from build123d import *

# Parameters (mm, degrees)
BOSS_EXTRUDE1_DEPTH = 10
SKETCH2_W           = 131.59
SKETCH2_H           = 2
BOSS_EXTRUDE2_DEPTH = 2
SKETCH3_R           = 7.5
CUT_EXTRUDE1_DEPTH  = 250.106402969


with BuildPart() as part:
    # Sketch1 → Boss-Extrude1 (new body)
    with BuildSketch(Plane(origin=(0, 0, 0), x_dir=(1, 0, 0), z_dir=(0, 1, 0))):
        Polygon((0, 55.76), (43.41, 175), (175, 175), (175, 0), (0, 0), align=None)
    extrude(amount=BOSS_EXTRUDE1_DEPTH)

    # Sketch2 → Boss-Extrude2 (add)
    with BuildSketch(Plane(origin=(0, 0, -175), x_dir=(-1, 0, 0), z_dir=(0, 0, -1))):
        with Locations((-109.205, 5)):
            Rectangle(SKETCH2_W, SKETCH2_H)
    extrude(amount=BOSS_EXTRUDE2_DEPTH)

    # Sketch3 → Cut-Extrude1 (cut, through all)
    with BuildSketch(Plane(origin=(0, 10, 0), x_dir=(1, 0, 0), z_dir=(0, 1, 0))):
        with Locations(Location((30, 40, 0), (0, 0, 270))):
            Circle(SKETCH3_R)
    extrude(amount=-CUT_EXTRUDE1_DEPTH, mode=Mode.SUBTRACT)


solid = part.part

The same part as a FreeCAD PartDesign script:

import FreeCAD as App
import Part
import Sketcher
Q = App.Units.Quantity

doc = App.newDocument("Part")
params = doc.addObject("Spreadsheet::Sheet", "Params")
for row, (alias, value) in enumerate([
    ("sketch1_width", "175 mm"),
    ("sketch1_width2", "131.59 mm"),
    ("sketch1_height", "55.76 mm"),
    ("pad1_length", "10 mm"),
    ("sketch2_height", "2 mm"),
    ("sketch2_width", "131.59 mm"),
    ("pad2_length", "2 mm"),
    ("sketch3_diameter", "15 mm"),
], start=1):
    params.set(f"A{row}", alias)
    params.set(f"B{row}", "=" + value)
    params.setAlias(f"B{row}", alias)

body = doc.addObject("PartDesign::Body", "Body")

# Sketch on XZ plane
sketch1 = body.newObject("Sketcher::SketchObject", "Sketch")
sketch1.AttachmentSupport = (doc.getObject("XZ_Plane"), [""])
sketch1.MapMode = "FlatFace"
sketch1.addGeometry([
    Part.LineSegment(App.Vector(43.41, -175, 0), App.Vector(0, -55.76, 0)),  # 0
    Part.LineSegment(App.Vector(0, -55.76, 0), App.Vector(0, 0, 0)),  # 1
    Part.LineSegment(App.Vector(0, 0, 0), App.Vector(175, 0, 0)),  # 2
    Part.LineSegment(App.Vector(175, 0, 0), App.Vector(175, -175, 0)),  # 3
    Part.LineSegment(App.Vector(175, -175, 0), App.Vector(43.41, -175, 0)),  # 4
], False)
sketch1.addConstraint([
    Sketcher.Constraint("Coincident", 0, 2, 1, 1),
    Sketcher.Constraint("Coincident", 1, 2, 2, 1),
    Sketcher.Constraint("Coincident", 2, 2, 3, 1),
    Sketcher.Constraint("Coincident", 3, 2, 4, 1),
    Sketcher.Constraint("Coincident", 4, 2, 0, 1),
    Sketcher.Constraint("Vertical", 1),
    Sketcher.Constraint("Horizontal", 2),
    Sketcher.Constraint("Vertical", 3),
    Sketcher.Constraint("Horizontal", 4),
    Sketcher.Constraint("Coincident", 1, 2, -1, 1),
    Sketcher.Constraint("Equal", 2, 3),
    Sketcher.Constraint("DistanceX", 2, 1, 2, 2, Q("175 mm")),
    Sketcher.Constraint("DistanceX", 4, 2, 4, 1, Q("131.59 mm")),
    Sketcher.Constraint("DistanceY", 1, 1, 1, 2, Q("55.76 mm")),
])
sketch1.setExpression("Constraints[11]", "Params.sketch1_width")
sketch1.setExpression("Constraints[12]", "Params.sketch1_width2")
sketch1.setExpression("Constraints[13]", "Params.sketch1_height")
pad1 = body.newObject("PartDesign::Pad", "Pad")
pad1.Profile = sketch1
pad1.setExpression("Length", "Params.pad1_length")
pad1.Reversed = True

# Sketch on XY plane
sketch2 = body.newObject("Sketcher::SketchObject", "Sketch001")
sketch2.AttachmentSupport = (doc.getObject("XY_Plane"), [""])
sketch2.MapMode = "FlatFace"
sketch2.AttachmentOffset = App.Placement(App.Vector(0, 0, -175), App.Rotation())
sketch2.addGeometry([
    Part.LineSegment(App.Vector(175, 6, 0), App.Vector(175, 4, 0)),
    Part.LineSegment(App.Vector(175, 4, 0), App.Vector(43.41, 4, 0)),
    Part.LineSegment(App.Vector(43.41, 4, 0), App.Vector(43.41, 6, 0)),
    Part.LineSegment(App.Vector(43.41, 6, 0), App.Vector(175, 6, 0)),
], False)
sketch2.addConstraint([
    Sketcher.Constraint("Coincident", 0, 2, 1, 1),
    Sketcher.Constraint("Coincident", 1, 2, 2, 1),
    Sketcher.Constraint("Coincident", 2, 2, 3, 1),
    Sketcher.Constraint("Coincident", 3, 2, 0, 1),
    Sketcher.Constraint("Vertical", 0),
    Sketcher.Constraint("Horizontal", 1),
    Sketcher.Constraint("Vertical", 2),
    Sketcher.Constraint("Horizontal", 3),
    Sketcher.Constraint("DistanceY", 0, 2, 0, 1, Q("2 mm")),
    Sketcher.Constraint("DistanceX", -1, 1, 0, 2, Q("175 mm")),
    Sketcher.Constraint("DistanceY", -1, 1, 0, 2, Q("4 mm")),
    Sketcher.Constraint("DistanceX", 1, 2, 1, 1, Q("131.59 mm")),
])
sketch2.setExpression("Constraints[8]", "Params.sketch2_height")
sketch2.setExpression("Constraints[11]", "Params.sketch2_width")
pad2 = body.newObject("PartDesign::Pad", "Pad001")
pad2.Profile = sketch2
pad2.setExpression("Length", "Params.pad2_length")
pad2.Reversed = True

# Sketch on XZ plane
sketch3 = body.newObject("Sketcher::SketchObject", "Sketch002")
sketch3.AttachmentSupport = (doc.getObject("XZ_Plane"), [""])
sketch3.MapMode = "FlatFace"
sketch3.AttachmentOffset = App.Placement(App.Vector(0, 0, -10), App.Rotation())
sketch3.addGeometry(Part.Circle(App.Vector(30, -40, 0), App.Vector(0, 0, 1), 7.5), False)
sketch3.addConstraint([
    Sketcher.Constraint("Diameter", 0, Q("15 mm")),
    Sketcher.Constraint("DistanceX", -1, 1, 0, 3, Q("30 mm")),
    Sketcher.Constraint("DistanceY", 0, 3, -1, 1, Q("40 mm")),
])
sketch3.setExpression("Constraints[0]", "Params.sketch3_diameter")
pocket1 = body.newObject("PartDesign::Pocket", "Pocket")
pocket1.Profile = sketch3
pocket1.Type = "ThroughAll"
pocket1.Reversed = True

doc.recompute()
